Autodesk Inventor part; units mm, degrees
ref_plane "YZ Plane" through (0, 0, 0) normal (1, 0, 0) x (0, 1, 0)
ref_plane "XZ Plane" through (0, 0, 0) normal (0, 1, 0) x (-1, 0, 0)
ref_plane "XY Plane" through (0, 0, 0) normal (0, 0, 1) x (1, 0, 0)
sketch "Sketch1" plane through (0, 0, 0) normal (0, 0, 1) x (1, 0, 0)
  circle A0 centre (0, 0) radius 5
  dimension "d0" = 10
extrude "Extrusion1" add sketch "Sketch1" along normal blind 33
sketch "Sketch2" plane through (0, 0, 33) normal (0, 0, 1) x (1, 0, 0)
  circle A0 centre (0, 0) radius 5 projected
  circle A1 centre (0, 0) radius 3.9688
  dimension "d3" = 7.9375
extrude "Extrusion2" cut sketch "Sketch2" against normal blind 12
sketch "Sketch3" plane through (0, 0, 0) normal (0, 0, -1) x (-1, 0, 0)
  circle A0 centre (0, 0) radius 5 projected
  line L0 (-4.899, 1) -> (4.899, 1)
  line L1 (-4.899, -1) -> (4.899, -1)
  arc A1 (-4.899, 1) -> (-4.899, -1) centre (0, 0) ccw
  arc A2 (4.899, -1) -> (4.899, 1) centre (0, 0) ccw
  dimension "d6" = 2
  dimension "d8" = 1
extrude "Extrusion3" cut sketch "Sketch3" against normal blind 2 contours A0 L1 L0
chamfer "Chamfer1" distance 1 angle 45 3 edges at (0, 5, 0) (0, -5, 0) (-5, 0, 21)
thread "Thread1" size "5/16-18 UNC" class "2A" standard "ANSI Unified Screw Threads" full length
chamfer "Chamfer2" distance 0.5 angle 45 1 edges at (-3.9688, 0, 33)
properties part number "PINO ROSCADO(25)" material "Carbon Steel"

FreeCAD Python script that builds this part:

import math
import FreeCAD as App
import Part
import Sketcher

V = App.Vector


def edges_at(feature, points):
    """Names of the edges that pass closest to the given points."""
    edges = feature.Shape.Edges
    near = lambda p: min(range(len(edges)), key=lambda i: edges[i].distToShape(Part.Vertex(*p))[0])
    return sorted({f"Edge{near(p) + 1}" for p in points})

doc = App.newDocument("Part")
body = doc.addObject("PartDesign::Body", "Body")

sketch1 = body.newObject("Sketcher::SketchObject", "Sketch")
sketch1.AttachmentSupport = (doc.getObject("XY_Plane"), [""])
sketch1.MapMode = "FlatFace"
sketch1.addGeometry(Part.Circle(V(0, 0, 0), V(0, 0, 1), 5), False)
sketch1.addConstraint([
    Sketcher.Constraint("Coincident", 0, 3, -1, 1),
    Sketcher.Constraint("Diameter", 0, 10.0),
])
pad1 = body.newObject("PartDesign::Pad", "Pad")
pad1.Profile = sketch1
pad1.Length = 33

sketch2 = body.newObject("Sketcher::SketchObject", "Sketch001")
sketch2.AttachmentSupport = (doc.getObject("XY_Plane"), [""])
sketch2.MapMode = "FlatFace"
sketch2.AttachmentOffset = App.Placement(V(0, 0, 33), App.Rotation())
sketch2.addGeometry([
    Part.Circle(V(0, 0, 0), V(0, 0, 1), 5),
    Part.Circle(V(0, 0, 0), V(0, 0, 1), 4),
], False)
sketch2.addConstraint([
    Sketcher.Constraint("Coincident", 0, 3, -1, 1),
    Sketcher.Constraint("Coincident", 1, 3, -1, 1),
    Sketcher.Constraint("Diameter", 0, 10.0),
    Sketcher.Constraint("Diameter", 1, 7.9376),
])
pocket1 = body.newObject("PartDesign::Pocket", "Pocket")
pocket1.Profile = sketch2
pocket1.Length = 12

sketch3 = body.newObject("Sketcher::SketchObject", "Sketch002")
sketch3.AttachmentSupport = (doc.getObject("XY_Plane"), [""])
sketch3.MapMode = "FlatFace"
sketch3.addGeometry([
    Part.ArcOfCircle(Part.Circle(V(0, 0, 0), V(0, 0, 1), 5), math.radians(168), math.radians(192)),
    Part.LineSegment(V(-4.9, 1, 0), V(4.9, 1, 0)),
    Part.ArcOfCircle(Part.Circle(V(0, 0, 0), V(0, 0, 1), 5), math.radians(-12), math.radians(12)),
    Part.LineSegment(V(4.9, -1, 0), V(-4.9, -1, 0)),
], False)
sketch3.addConstraint([
    Sketcher.Constraint("Coincident", 0, 1, 1, 1),
    Sketcher.Constraint("Coincident", 1, 2, 2, 2),
    Sketcher.Constraint("Coincident", 2, 1, 3, 1),
    Sketcher.Constraint("Coincident", 3, 2, 0, 2),
    Sketcher.Constraint("Horizontal", 1),
    Sketcher.Constraint("Horizontal", 3),
    Sketcher.Constraint("Coincident", 0, 3, -1, 1),
    Sketcher.Constraint("Coincident", 2, 3, -1, 1),
    Sketcher.Constraint("Equal", 0, 2),
    Sketcher.Constraint("Vertical", 1, 2, 2, 1),
    Sketcher.Constraint("DistanceY", -1, 1, 0, 1, 1.0),
    Sketcher.Constraint("Radius", 0, 5.0),
])
pocket2 = body.newObject("PartDesign::Pocket", "Pocket001")
pocket2.Profile = sketch3
pocket2.Length = 2
pocket2.Reversed = True
doc.recompute()

chamfer = body.newObject("PartDesign::Chamfer", "Chamfer")
chamfer.Base = (pocket2, edges_at(pocket2, [(0, 5, 0), (0, -5, 0), (-5, 0, 21)]))
chamfer.Size = 1
doc.recompute()

chamfer2 = body.newObject("PartDesign::Chamfer", "Chamfer001")
chamfer2.Base = (chamfer, edges_at(chamfer, [(-3.969, 0, 33)]))
chamfer2.Size = 0.5

doc.recompute()
